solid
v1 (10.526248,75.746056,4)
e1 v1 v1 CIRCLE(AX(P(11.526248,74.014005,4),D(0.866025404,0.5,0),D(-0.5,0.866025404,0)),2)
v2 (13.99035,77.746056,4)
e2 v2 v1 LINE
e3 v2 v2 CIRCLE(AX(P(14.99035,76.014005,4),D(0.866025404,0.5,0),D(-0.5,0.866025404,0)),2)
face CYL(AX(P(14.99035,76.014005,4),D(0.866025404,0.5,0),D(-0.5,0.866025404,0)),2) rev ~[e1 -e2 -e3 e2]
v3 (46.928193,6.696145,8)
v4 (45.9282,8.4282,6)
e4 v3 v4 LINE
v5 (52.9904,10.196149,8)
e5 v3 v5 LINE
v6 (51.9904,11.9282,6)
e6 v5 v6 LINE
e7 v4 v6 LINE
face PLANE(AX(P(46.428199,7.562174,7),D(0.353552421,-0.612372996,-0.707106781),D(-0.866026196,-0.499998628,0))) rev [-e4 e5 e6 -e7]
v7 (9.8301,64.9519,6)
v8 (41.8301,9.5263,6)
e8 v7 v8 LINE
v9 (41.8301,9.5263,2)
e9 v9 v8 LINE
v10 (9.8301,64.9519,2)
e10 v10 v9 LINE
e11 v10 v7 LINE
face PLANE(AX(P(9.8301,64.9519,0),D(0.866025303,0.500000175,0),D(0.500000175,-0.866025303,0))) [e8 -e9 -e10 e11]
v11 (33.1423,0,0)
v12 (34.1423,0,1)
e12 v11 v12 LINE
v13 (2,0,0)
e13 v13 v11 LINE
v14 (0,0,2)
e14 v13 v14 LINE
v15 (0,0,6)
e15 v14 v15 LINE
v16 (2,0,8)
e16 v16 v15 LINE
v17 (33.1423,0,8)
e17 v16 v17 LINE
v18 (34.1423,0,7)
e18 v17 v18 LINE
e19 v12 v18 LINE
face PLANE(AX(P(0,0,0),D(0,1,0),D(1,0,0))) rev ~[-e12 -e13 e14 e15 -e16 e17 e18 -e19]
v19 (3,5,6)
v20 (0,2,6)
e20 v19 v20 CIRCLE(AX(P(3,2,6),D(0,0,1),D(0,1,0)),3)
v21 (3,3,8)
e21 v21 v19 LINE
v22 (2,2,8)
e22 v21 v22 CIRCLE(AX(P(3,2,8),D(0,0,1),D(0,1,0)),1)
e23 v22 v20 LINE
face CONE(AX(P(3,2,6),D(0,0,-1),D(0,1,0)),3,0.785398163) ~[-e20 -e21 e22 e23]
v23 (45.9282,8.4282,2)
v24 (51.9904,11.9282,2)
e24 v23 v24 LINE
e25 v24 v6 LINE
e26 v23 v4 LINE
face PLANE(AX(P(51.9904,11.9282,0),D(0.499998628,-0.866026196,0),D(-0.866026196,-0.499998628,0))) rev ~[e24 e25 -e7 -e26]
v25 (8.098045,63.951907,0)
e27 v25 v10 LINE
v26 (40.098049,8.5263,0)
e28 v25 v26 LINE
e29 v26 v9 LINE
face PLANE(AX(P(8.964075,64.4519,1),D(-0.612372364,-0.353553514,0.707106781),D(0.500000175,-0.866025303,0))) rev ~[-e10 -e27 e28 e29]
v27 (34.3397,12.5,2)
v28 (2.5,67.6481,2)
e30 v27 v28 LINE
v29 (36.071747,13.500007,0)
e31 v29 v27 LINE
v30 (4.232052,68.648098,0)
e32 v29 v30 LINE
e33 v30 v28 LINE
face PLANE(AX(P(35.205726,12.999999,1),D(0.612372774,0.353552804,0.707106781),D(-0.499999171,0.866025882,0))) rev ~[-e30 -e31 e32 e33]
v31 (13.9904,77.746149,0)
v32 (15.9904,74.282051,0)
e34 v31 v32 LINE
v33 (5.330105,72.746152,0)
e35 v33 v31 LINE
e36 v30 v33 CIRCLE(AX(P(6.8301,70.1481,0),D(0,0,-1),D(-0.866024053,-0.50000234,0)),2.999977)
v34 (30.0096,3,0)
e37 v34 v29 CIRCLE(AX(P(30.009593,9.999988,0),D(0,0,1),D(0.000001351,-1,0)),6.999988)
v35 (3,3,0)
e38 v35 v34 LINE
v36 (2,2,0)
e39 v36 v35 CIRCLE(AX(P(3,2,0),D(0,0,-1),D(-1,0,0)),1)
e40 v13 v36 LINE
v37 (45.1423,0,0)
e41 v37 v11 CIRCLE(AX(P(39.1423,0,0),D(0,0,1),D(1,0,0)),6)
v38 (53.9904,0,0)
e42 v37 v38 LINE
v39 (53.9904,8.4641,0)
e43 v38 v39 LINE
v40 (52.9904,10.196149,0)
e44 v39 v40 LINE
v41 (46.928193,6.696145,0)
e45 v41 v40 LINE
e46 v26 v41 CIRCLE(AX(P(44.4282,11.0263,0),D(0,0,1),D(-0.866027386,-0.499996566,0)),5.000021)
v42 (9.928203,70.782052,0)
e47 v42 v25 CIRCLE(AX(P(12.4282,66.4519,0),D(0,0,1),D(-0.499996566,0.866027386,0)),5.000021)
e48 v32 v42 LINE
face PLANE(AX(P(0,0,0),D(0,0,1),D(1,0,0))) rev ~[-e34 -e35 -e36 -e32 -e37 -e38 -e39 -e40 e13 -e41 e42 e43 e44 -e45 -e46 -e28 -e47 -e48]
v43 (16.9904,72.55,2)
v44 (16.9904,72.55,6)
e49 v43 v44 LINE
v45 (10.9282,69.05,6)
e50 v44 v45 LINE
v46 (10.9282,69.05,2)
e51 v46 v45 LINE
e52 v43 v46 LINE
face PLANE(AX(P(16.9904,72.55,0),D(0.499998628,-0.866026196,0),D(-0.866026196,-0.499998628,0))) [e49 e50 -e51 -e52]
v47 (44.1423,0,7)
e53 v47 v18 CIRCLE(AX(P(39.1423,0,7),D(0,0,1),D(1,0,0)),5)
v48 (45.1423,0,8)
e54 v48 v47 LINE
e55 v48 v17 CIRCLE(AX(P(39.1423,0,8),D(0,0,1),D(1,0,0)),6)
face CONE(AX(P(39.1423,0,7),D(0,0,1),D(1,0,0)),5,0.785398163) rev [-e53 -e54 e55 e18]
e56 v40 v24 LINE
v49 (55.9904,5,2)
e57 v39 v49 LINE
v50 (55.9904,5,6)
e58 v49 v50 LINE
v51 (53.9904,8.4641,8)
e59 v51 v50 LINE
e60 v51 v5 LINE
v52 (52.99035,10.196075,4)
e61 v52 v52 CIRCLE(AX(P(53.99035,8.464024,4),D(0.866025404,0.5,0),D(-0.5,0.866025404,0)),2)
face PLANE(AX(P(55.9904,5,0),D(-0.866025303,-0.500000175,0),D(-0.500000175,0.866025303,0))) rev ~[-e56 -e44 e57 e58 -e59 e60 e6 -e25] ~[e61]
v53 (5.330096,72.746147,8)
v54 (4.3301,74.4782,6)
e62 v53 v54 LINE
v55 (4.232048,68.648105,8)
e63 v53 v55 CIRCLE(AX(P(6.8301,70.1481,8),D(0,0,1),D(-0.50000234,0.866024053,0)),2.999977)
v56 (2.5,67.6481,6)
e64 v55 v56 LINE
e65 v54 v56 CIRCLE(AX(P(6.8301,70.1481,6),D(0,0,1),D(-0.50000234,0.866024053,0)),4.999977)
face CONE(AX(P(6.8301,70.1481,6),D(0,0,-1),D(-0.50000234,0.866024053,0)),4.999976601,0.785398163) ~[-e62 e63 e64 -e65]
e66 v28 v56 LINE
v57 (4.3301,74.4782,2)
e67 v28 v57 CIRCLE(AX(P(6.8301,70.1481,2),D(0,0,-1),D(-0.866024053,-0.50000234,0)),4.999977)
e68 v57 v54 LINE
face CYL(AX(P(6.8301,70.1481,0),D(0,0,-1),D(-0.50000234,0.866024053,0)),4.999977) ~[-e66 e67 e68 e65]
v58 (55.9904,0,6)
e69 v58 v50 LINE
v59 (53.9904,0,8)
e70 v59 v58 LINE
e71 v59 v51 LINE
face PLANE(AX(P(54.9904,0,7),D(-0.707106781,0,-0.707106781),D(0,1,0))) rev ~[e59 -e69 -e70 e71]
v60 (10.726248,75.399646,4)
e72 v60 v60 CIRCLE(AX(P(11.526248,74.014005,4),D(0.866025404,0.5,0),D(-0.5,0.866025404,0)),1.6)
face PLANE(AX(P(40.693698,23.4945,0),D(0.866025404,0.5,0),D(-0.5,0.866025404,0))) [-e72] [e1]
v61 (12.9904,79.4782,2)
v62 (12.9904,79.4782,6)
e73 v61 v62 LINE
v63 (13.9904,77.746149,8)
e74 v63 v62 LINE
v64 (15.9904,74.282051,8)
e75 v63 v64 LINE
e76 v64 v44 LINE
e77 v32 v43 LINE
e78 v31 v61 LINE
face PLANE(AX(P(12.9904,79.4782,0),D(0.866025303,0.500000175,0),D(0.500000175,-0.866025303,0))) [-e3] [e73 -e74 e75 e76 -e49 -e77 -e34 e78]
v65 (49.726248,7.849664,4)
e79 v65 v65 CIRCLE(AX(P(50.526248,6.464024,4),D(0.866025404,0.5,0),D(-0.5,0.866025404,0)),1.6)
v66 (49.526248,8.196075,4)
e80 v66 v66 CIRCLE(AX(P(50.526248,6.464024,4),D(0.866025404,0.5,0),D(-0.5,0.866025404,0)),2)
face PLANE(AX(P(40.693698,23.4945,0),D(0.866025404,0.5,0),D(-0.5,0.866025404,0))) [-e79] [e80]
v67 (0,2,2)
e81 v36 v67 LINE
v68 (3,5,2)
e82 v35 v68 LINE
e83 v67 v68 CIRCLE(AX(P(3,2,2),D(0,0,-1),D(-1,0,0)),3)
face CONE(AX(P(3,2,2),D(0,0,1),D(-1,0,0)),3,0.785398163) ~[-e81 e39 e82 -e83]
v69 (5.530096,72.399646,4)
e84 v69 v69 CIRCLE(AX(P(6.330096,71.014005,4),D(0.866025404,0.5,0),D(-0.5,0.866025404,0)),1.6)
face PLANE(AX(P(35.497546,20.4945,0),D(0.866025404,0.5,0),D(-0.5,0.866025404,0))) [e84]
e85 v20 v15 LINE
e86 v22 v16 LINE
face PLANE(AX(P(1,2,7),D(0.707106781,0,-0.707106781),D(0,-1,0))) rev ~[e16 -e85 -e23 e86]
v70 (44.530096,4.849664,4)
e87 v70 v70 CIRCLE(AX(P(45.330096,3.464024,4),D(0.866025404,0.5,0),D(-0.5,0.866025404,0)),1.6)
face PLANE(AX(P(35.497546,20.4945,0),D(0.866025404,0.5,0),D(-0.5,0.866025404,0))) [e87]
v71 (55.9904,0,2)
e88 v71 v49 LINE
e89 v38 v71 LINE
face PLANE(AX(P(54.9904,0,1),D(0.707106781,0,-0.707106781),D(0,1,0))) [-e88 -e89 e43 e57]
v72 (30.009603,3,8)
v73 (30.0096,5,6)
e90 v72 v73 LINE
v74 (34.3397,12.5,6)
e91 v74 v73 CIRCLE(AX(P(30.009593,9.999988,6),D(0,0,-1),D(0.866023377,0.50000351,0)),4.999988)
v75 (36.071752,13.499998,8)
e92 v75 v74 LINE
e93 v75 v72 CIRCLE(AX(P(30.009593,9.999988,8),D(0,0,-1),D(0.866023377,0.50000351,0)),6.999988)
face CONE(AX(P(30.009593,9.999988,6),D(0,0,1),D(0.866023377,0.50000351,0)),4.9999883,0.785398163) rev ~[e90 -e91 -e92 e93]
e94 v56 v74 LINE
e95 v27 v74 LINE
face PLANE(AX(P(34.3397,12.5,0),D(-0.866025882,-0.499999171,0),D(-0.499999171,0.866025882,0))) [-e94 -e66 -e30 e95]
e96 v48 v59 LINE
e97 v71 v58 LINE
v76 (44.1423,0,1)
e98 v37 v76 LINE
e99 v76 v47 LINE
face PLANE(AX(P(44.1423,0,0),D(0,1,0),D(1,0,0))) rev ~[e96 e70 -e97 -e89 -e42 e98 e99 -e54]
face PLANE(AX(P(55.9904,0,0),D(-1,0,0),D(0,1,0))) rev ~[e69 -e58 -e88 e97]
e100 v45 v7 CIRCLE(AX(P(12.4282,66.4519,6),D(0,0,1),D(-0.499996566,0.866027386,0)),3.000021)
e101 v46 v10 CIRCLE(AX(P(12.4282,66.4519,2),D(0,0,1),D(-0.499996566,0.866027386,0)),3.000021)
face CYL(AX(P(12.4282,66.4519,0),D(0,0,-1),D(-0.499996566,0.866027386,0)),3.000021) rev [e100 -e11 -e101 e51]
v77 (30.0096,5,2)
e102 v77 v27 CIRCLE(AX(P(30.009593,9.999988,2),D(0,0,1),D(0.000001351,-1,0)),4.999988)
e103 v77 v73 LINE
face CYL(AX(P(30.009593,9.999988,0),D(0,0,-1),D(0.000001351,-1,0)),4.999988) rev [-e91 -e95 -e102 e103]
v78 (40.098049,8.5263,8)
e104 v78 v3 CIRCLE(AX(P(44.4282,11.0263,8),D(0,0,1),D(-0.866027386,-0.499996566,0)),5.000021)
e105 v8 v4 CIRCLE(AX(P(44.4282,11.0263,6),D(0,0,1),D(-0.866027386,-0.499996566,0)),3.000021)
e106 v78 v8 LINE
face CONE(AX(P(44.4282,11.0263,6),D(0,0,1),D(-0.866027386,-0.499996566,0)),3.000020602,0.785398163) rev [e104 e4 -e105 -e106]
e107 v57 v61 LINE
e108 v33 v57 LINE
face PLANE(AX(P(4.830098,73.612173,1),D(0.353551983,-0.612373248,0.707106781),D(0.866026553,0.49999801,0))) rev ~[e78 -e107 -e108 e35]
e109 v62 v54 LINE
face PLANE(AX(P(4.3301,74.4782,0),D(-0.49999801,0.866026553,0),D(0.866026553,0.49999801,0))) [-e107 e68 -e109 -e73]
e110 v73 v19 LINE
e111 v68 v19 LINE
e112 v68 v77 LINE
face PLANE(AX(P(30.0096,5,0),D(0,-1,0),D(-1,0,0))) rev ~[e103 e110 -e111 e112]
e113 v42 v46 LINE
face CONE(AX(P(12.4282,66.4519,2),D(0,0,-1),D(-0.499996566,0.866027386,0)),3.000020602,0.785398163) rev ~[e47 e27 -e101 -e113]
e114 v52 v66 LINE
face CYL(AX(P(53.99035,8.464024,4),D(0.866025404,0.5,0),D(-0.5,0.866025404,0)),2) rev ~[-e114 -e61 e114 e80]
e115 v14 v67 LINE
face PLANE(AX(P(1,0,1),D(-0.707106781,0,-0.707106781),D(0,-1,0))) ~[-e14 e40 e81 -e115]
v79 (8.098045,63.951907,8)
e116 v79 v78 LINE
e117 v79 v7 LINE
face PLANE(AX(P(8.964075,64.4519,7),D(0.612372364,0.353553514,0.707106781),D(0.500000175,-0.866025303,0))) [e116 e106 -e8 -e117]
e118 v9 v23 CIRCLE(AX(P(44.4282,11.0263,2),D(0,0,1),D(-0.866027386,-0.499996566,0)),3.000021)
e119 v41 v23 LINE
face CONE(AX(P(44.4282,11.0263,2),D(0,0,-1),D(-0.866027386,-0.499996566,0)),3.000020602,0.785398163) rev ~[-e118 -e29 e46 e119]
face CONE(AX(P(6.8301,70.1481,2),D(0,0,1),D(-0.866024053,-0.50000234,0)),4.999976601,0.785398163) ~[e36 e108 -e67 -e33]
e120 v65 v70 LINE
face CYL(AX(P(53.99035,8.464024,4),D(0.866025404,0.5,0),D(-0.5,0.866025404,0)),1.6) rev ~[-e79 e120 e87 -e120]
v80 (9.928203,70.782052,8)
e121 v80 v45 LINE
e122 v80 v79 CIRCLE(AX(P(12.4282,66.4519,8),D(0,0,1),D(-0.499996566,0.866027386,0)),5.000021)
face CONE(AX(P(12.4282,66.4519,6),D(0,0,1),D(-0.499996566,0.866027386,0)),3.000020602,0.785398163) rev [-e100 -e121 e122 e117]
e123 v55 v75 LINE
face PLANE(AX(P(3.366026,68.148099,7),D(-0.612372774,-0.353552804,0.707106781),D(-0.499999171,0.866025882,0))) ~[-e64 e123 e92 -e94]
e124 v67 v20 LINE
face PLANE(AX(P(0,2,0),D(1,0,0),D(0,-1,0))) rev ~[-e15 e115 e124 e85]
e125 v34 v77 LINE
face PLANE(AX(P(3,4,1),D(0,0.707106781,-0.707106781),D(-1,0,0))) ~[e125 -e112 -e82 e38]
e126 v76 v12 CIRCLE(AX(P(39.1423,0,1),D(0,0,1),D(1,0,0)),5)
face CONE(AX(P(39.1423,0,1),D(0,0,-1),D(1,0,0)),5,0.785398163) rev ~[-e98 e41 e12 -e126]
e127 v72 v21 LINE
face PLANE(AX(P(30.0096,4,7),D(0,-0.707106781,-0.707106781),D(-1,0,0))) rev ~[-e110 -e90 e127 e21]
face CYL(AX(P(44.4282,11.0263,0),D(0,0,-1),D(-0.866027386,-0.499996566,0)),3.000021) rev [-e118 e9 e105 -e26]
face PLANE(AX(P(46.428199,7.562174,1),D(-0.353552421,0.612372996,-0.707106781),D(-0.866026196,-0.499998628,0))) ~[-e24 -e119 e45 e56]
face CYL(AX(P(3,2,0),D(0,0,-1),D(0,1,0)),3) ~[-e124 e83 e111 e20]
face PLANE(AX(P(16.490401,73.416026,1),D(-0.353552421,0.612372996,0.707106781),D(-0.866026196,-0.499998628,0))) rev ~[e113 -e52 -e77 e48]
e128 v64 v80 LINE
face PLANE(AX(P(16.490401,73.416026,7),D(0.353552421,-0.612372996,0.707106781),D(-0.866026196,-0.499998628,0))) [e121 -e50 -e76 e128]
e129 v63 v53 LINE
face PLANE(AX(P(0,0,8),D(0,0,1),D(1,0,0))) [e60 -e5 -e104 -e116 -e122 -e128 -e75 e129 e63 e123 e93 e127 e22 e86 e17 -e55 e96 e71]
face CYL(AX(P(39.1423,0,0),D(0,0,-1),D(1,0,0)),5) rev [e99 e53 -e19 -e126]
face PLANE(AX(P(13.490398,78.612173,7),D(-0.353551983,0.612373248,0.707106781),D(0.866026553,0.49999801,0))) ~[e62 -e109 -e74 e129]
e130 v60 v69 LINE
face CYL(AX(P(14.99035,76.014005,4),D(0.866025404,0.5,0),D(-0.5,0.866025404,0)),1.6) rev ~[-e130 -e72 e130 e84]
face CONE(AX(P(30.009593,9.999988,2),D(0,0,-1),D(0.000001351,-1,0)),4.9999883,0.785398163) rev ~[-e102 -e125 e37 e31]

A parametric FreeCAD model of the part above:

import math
import FreeCAD as App
import Part
import Sketcher

V = App.Vector
Q = App.Units.Quantity


def edges_at(feature, points):
    """Names of the edges that pass closest to the given points."""
    edges = feature.Shape.Edges
    near = lambda p: min(range(len(edges)), key=lambda i: edges[i].distToShape(Part.Vertex(*p))[0])
    return sorted({f"Edge{near(p) + 1}" for p in points})

doc = App.newDocument("Part")
body = doc.addObject("PartDesign::Body", "Body")

sketch1 = body.newObject("Sketcher::SketchObject", "Sketch")
sketch1.AttachmentSupport = (doc.getObject("XY_Plane"), [""])
sketch1.MapMode = "FlatFace"
sketch1.addGeometry(Part.LineSegment(V(0, 2, 0), V(0, 0, 0)), False)
sketch1.addGeometry(Part.LineSegment(V(0, 0, 0), V(34.1, 0, 0)), False)
sketch1.addGeometry(Part.ArcOfCircle(Part.Circle(V(39.1, 0, 0), V(0, 0, 1), 5), math.radians(0), math.radians(180)), False)
sketch1.addGeometry(Part.LineSegment(V(44.1, 0, 0), V(56, 0, 0)), False)
sketch1.addGeometry(Part.LineSegment(V(56, 0, 0), V(56, 5, 0)), False)
sketch1.addGeometry(Part.LineSegment(V(56, 5, 0), V(52, 11.9, 0)), False)
sketch1.addGeometry(Part.LineSegment(V(52, 11.9, 0), V(45.9, 8.4, 0)), False)
sketch1.addGeometry(Part.ArcOfCircle(Part.Circle(V(44.4, 11, 0), V(0, 0, 1), 3), math.radians(-150), math.radians(-60)), False)
sketch1.addGeometry(Part.LineSegment(V(41.8, 9.5, 0), V(9.8, 65, 0)), False)
sketch1.addGeometry(Part.ArcOfCircle(Part.Circle(V(12.4, 66.5, 0), V(0, 0, 1), 3), math.radians(120), math.radians(210)), False)
sketch1.addGeometry(Part.LineSegment(V(10.9, 69, 0), V(17, 72.5, 0)), False)
sketch1.addGeometry(Part.LineSegment(V(17, 72.5, 0), V(13, 79.5, 0)), False)
sketch1.addGeometry(Part.LineSegment(V(13, 79.5, 0), V(4.3, 74.5, 0)), False)
sketch1.addGeometry(Part.ArcOfCircle(Part.Circle(V(6.8, 70.1, 0), V(0, 0, 1), 5), math.radians(120), math.radians(210)), False)
sketch1.addGeometry(Part.LineSegment(V(2.5, 67.6, 0), V(34.3, 12.5, 0)), False)
sketch1.addGeometry(Part.ArcOfCircle(Part.Circle(V(30, 10, 0), V(0, 0, 1), 5), math.radians(-90), math.radians(30)), False)
sketch1.addGeometry(Part.LineSegment(V(30, 5, 0), V(3, 5, 0)), False)
sketch1.addGeometry(Part.ArcOfCircle(Part.Circle(V(3, 2, 0), V(0, 0, 1), 3), math.radians(90), math.radians(180)), False)
sketch1.addConstraint(Sketcher.Constraint("Coincident", 0, 2, 1, 1))
sketch1.addConstraint(Sketcher.Constraint("Coincident", 1, 2, 2, 2))
sketch1.addConstraint(Sketcher.Constraint("Coincident", 2, 1, 3, 1))
sketch1.addConstraint(Sketcher.Constraint("Coincident", 3, 2, 4, 1))
sketch1.addConstraint(Sketcher.Constraint("Coincident", 4, 2, 5, 1))
sketch1.addConstraint(Sketcher.Constraint("Coincident", 5, 2, 6, 1))
sketch1.addConstraint(Sketcher.Constraint("Tangent", 6, 2, 7, 2))
sketch1.addConstraint(Sketcher.Constraint("Tangent", 7, 1, 8, 1))
sketch1.addConstraint(Sketcher.Constraint("Tangent", 8, 2, 9, 2))
sketch1.addConstraint(Sketcher.Constraint("Tangent", 9, 1, 10, 1))
sketch1.addConstraint(Sketcher.Constraint("Coincident", 10, 2, 11, 1))
sketch1.addConstraint(Sketcher.Constraint("Coincident", 11, 2, 12, 1))
sketch1.addConstraint(Sketcher.Constraint("Tangent", 12, 2, 13, 1))
sketch1.addConstraint(Sketcher.Constraint("Tangent", 13, 2, 14, 1))
sketch1.addConstraint(Sketcher.Constraint("Tangent", 14, 2, 15, 2))
sketch1.addConstraint(Sketcher.Constraint("Tangent", 15, 1, 16, 1))
sketch1.addConstraint(Sketcher.Constraint("Tangent", 16, 2, 17, 1))
sketch1.addConstraint(Sketcher.Constraint("Tangent", 17, 2, 0, 1))
sketch1.addConstraint(Sketcher.Constraint("Vertical", 0))
sketch1.addConstraint(Sketcher.Constraint("Horizontal", 1))
sketch1.addConstraint(Sketcher.Constraint("Horizontal", 3))
sketch1.addConstraint(Sketcher.Constraint("Vertical", 4))
sketch1.addConstraint(Sketcher.Constraint("Horizontal", 16))
sketch1.addConstraint(Sketcher.Constraint("Coincident", 0, 2, -1, 1))
sketch1.addConstraint(Sketcher.Constraint("Equal", 7, 9))
sketch1.addConstraint(Sketcher.Constraint("Equal", 2, 13))
sketch1.addConstraint(Sketcher.Constraint("Equal", 13, 15))
sketch1.addConstraint(Sketcher.Constraint("Equal", 9, 17))
sketch1.addConstraint(Sketcher.Constraint("PointOnObject", 2, 3, -1))
sketch1.addConstraint(Sketcher.Constraint("PointOnObject", 2, 1, -1))
sketch1.addConstraint(Sketcher.Constraint("Perpendicular", 5, 6))
sketch1.addConstraint(Sketcher.Constraint("Perpendicular", 6, 8))
sketch1.addConstraint(Sketcher.Constraint("Perpendicular", 8, 10))
sketch1.addConstraint(Sketcher.Constraint("Perpendicular", 10, 11))
sketch1.addConstraint(Sketcher.Constraint("Perpendicular", 11, 12))
sketch1.addConstraint(Sketcher.Constraint("Perpendicular", 12, 14))
sketch1.addConstraint(Sketcher.Constraint("Horizontal", 4, 2, 15, 1))
sketch1.addConstraint(Sketcher.Constraint("Equal", 6, 10))
sketch1.addConstraint(Sketcher.Constraint("Equal", 5, 11))
sketch1.addConstraint(Sketcher.Constraint("Radius", 2, Q("5 mm")))
sketch1.addConstraint(Sketcher.Constraint("Radius", 7, Q("3 mm")))
sketch1.addConstraint(Sketcher.Constraint("DistanceY", 4, 1, 4, 2, Q("5 mm")))
sketch1.addConstraint(Sketcher.Constraint("Angle", 5, Q("120 deg")))
sketch1.addConstraint(Sketcher.Constraint("Distance", 5, Q("8 mm")))
sketch1.addConstraint(Sketcher.Constraint("Distance", 12, Q("10 mm")))
sketch1.addConstraint(Sketcher.Constraint("DistanceX", 13, 3, 8, 2, Q("3 mm")))
sketch1.addConstraint(Sketcher.Constraint("Distance", 8, Q("64 mm")))
sketch1.addConstraint(Sketcher.Constraint("DistanceX", -1, 1, 13, 2, Q("2.5 mm")))
sketch1.addConstraint(Sketcher.Constraint("DistanceX", 3, 1, 3, 2, Q("11.848 mm")))
pad1 = body.newObject("PartDesign::Pad", "Pad")
pad1.Profile = sketch1
pad1.Length = 8

sketch2 = body.newObject("Sketcher::SketchObject", "Sketch001")
sketch2.Placement = App.Placement(V(44.1578, 25.4945, 0), App.Rotation(V(-0.5, 0.866025404, 0), V(0, 0, 1), V(0.866025404, 0.5, 0), "ZXY"))
sketch2.addGeometry(Part.Circle(V(-19.7, 4, 0), V(0, 0, 1), 2), False)
sketch2.addGeometry(Part.Circle(V(58.3, 4, 0), V(0, 0, 1), 2), False)
sketch2.addConstraint(Sketcher.Constraint("Equal", 0, 1))
sketch2.addConstraint(Sketcher.Constraint("Horizontal", 0, 3, 1, 3))
sketch2.addConstraint(Sketcher.Constraint("Diameter", 0, Q("4 mm")))
sketch2.addConstraint(Sketcher.Constraint("DistanceY", -1, 1, 0, 3, Q("4 mm")))
sketch2.addConstraint(Sketcher.Constraint("DistanceX", 0, 3, 1, 3, Q("78 mm")))
sketch2.addConstraint(Sketcher.Constraint("DistanceX", 0, 3, -1, 1, Q("19.665 mm")))
pocket1 = body.newObject("PartDesign::Pocket", "Pocket")
pocket1.Profile = sketch2
pocket1.Length = 4

sketch3 = body.newObject("Sketcher::SketchObject", "Sketch002")
sketch3.Placement = App.Placement(V(44.1578, 25.4945, 0), App.Rotation(V(-0.5, 0.866025404, 0), V(0, 0, 1), V(0.866025404, 0.5, 0), "ZXY"))
sketch3.addGeometry(Part.Circle(V(-19.7, 4, 0), V(0, 0, 1), 1.6), False)
sketch3.addGeometry(Part.Circle(V(58.3, 4, 0), V(0, 0, 1), 1.6), False)
sketch3.addConstraint(Sketcher.Constraint("Equal", 0, 1))
sketch3.addConstraint(Sketcher.Constraint("Horizontal", 0, 3, 1, 3))
sketch3.addConstraint(Sketcher.Constraint("Diameter", 0, Q("3.2 mm")))
sketch3.addConstraint(Sketcher.Constraint("DistanceY", -1, 1, 0, 3, Q("4 mm")))
sketch3.addConstraint(Sketcher.Constraint("DistanceX", 0, 3, 1, 3, Q("78 mm")))
sketch3.addConstraint(Sketcher.Constraint("DistanceX", 0, 3, -1, 1, Q("19.665 mm")))
pocket2 = body.newObject("PartDesign::Pocket", "Pocket001")
pocket2.Profile = sketch3
pocket2.Length = 10
doc.recompute()

chamfer = body.newObject("PartDesign::Chamfer", "Chamfer")
chamfer.Base = (pocket2, edges_at(pocket2, [
    (16.505, 5, 8),
    (34.34, 7.5, 8),
    (18.42, 40.074, 8),
    (2.001, 71.442, 8),
    (8.66, 76.978, 8),
    (0, 1, 8),
    (0.879, 4.121, 8),
    (25.83, 37.239, 8),
    (43.652, 8.129, 8),
    (48.959, 10.178, 8),
    (13.959, 70.8, 8),
    (9.53, 67.228, 8),
    (25.83, 37.239, 0),
    (9.53, 67.228, 0),
    (13.959, 70.8, 0),
    (48.959, 10.178, 0),
    (43.652, 8.129, 0),
    (18.42, 40.074, 0),
    (34.34, 7.5, 0),
    (16.505, 5, 0),
    (0.879, 4.121, 0),
    (0, 1, 0),
    (8.66, 76.978, 0),
    (2.001, 71.442, 0),
    (55.99, 2.5, 8),
    (55.99, 2.5, 0),
]))
chamfer.Size = 2
doc.recompute()

chamfer2 = body.newObject("PartDesign::Chamfer", "Chamfer001")
chamfer2.Base = (chamfer, edges_at(chamfer, [(39.142, 5, 0), (39.142, 5, 8)]))
chamfer2.Size = 1

doc.recompute()
